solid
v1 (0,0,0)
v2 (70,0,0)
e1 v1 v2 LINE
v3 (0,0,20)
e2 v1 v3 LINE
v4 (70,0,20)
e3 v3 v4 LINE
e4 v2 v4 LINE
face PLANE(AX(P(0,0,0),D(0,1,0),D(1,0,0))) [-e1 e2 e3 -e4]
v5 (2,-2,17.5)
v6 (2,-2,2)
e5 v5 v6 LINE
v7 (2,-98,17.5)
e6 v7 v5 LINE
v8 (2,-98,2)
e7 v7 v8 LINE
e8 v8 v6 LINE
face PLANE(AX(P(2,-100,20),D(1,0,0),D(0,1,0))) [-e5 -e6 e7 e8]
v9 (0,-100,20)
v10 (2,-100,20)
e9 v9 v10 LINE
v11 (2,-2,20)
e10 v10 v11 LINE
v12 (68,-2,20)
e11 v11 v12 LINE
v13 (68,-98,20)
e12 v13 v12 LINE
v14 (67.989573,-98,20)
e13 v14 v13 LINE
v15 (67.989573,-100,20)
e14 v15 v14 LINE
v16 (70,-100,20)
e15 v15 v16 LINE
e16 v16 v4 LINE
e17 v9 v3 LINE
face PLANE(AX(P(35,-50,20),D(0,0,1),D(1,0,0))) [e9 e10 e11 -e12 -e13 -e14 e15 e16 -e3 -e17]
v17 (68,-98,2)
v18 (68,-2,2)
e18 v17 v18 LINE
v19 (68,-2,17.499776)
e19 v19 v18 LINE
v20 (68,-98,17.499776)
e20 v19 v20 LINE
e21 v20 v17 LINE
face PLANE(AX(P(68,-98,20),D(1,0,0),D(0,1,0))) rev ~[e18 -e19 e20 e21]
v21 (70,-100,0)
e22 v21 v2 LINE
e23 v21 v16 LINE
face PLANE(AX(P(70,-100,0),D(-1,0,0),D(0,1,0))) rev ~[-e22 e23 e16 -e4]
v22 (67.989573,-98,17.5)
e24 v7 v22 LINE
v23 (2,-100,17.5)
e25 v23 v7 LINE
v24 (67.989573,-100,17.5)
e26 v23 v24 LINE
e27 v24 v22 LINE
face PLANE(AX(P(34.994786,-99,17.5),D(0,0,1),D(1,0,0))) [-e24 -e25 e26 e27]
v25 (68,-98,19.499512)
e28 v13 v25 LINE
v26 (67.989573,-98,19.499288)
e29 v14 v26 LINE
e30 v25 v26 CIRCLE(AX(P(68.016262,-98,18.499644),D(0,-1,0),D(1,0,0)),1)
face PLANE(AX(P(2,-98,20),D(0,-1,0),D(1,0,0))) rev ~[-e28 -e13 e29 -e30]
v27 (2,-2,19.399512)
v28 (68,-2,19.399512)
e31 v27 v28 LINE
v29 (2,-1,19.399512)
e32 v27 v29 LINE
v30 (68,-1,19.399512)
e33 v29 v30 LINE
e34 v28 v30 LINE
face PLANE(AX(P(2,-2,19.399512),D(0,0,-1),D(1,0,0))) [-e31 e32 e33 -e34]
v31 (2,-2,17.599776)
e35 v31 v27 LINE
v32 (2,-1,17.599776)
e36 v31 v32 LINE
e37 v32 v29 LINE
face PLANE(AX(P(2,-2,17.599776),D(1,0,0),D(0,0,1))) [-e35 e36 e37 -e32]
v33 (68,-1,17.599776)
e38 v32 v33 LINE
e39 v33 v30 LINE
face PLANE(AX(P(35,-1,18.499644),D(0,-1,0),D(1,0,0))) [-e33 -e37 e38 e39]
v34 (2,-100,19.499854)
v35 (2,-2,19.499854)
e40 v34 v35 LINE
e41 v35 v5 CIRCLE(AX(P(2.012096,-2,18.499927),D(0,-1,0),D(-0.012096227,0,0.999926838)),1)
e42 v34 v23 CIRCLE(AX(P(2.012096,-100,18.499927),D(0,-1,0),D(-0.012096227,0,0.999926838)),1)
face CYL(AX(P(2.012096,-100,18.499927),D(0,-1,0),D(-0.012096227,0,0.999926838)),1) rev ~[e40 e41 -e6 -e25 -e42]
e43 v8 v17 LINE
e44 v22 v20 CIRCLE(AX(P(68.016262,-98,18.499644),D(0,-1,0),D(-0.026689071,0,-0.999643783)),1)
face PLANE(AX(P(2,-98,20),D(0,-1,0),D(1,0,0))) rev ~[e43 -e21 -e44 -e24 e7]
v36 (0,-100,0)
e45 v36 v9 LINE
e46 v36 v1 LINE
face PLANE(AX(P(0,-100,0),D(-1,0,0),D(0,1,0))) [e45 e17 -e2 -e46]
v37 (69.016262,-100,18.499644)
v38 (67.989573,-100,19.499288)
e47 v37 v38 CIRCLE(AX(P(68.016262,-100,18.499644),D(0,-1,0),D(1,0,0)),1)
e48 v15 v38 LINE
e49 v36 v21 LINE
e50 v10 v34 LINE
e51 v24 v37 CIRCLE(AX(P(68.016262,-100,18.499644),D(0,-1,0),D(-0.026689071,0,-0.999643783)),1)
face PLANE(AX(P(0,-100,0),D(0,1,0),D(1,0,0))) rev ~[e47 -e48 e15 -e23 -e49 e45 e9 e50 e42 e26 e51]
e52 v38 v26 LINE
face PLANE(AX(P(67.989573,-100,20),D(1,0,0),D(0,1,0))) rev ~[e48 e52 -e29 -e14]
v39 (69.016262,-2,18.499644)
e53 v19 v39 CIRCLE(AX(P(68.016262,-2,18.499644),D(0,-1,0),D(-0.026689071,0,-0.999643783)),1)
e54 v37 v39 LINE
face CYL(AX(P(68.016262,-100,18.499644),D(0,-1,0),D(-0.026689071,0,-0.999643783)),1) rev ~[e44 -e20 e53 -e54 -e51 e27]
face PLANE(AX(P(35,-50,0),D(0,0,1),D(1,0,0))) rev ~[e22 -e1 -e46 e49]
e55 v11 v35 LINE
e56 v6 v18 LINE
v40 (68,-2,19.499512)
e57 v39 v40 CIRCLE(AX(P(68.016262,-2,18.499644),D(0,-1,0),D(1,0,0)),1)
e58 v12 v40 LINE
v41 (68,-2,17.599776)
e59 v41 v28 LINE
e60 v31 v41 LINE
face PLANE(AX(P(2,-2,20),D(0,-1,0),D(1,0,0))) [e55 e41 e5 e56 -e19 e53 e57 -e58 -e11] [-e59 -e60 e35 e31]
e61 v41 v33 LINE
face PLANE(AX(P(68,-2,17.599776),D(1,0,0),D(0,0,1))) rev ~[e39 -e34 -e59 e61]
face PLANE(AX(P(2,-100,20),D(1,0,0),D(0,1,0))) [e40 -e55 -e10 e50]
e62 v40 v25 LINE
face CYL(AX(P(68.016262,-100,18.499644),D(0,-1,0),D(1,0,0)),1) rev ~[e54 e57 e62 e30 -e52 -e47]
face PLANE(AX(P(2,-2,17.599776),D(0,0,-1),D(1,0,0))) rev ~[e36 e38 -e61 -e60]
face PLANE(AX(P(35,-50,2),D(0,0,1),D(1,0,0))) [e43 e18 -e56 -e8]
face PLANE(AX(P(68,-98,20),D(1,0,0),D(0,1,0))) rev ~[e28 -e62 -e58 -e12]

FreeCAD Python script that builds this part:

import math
import FreeCAD as App
import Part
import Sketcher

V = App.Vector


def add_polygon(sketch, points):
    """Adds a closed chain of lines whose ends are joined by coincident constraints."""
    first, n = sketch.GeometryCount, len(points)
    for a, b in zip(points, points[1:] + points[:1]):
        sketch.addGeometry(Part.LineSegment(App.Vector(*a, 0), App.Vector(*b, 0)), False)
    for i in range(n):
        sketch.addConstraint(Sketcher.Constraint("Coincident", first + i, 2, first + (i + 1) % n, 1))

doc = App.newDocument("Part")
params = doc.addObject("Spreadsheet::Sheet", "Params")
for row, (alias, value) in enumerate([
    ("sketch1_width", "70 mm"),
    ("sketch1_height", "100 mm"),
    ("pad1_length", "20 mm"),
    ("sketch2_width", "66 mm"),
    ("sketch2_height", "96 mm"),
    ("pocket1_length", "18 mm"),
    ("sketch3_height", "2 mm"),
    ("pocket2_length", "2.5 mm"),
    ("sketch4_radius", "1 mm"),
    ("pocket3_length", "98 mm"),
    ("sketch5_width", "66 mm"),
    ("pocket4_length", "1 mm"),
], start=1):
    params.set(f"A{row}", alias)
    params.set(f"B{row}", "=" + value)
    params.setAlias(f"B{row}", alias)

body = doc.addObject("PartDesign::Body", "Body")

# Sketch on XY plane
sketch1 = body.newObject("Sketcher::SketchObject", "Sketch")
sketch1.AttachmentSupport = (doc.getObject("XY_Plane"), [""])
sketch1.MapMode = "FlatFace"
add_polygon(sketch1, [(0, 0), (0, -100), (70, -100), (70, 0)])  # lines 0-3
sketch1.addConstraint(Sketcher.Constraint("Vertical", 0))
sketch1.addConstraint(Sketcher.Constraint("Horizontal", 1))
sketch1.addConstraint(Sketcher.Constraint("Vertical", 2))
sketch1.addConstraint(Sketcher.Constraint("Horizontal", 3))
sketch1.addConstraint(Sketcher.Constraint("Coincident", 3, 2, -1, 1))
sketch1.addConstraint(Sketcher.Constraint("DistanceX", 1, 1, 1, 2, 70.0))
sketch1.addConstraint(Sketcher.Constraint("DistanceY", 0, 2, 0, 1, 100.0))
sketch1.setExpression("Constraints[9]", "Params.sketch1_width")
sketch1.setExpression("Constraints[10]", "Params.sketch1_height")
pad1 = body.newObject("PartDesign::Pad", "Pad")
pad1.Profile = sketch1
pad1.setExpression("Length", "Params.pad1_length")

# Sketch on XY plane
sketch2 = body.newObject("Sketcher::SketchObject", "Sketch001")
sketch2.AttachmentSupport = (doc.getObject("XY_Plane"), [""])
sketch2.MapMode = "FlatFace"
sketch2.AttachmentOffset = App.Placement(V(0, 0, 20), App.Rotation())
add_polygon(sketch2, [(2, -2), (2, -98), (68, -98), (68, -2)])  # lines 0-3
sketch2.addConstraint(Sketcher.Constraint("Vertical", 0))
sketch2.addConstraint(Sketcher.Constraint("Horizontal", 1))
sketch2.addConstraint(Sketcher.Constraint("Vertical", 2))
sketch2.addConstraint(Sketcher.Constraint("Horizontal", 3))
sketch2.addConstraint(Sketcher.Constraint("DistanceX", 1, 1, 1, 2, 66.0))
sketch2.addConstraint(Sketcher.Constraint("DistanceY", 0, 2, 0, 1, 96.0))
sketch2.addConstraint(Sketcher.Constraint("DistanceX", -1, 1, 0, 2, 2.0))
sketch2.addConstraint(Sketcher.Constraint("DistanceY", 0, 2, -1, 1, 98.0))
sketch2.setExpression("Constraints[8]", "Params.sketch2_width")
sketch2.setExpression("Constraints[9]", "Params.sketch2_height")
pocket1 = body.newObject("PartDesign::Pocket", "Pocket")
pocket1.Profile = sketch2
pocket1.setExpression("Length", "Params.pocket1_length")

# Sketch on XY plane
sketch3 = body.newObject("Sketcher::SketchObject", "Sketch002")
sketch3.AttachmentSupport = (doc.getObject("XY_Plane"), [""])
sketch3.MapMode = "FlatFace"
sketch3.AttachmentOffset = App.Placement(V(0, 0, 20), App.Rotation())
add_polygon(sketch3, [(2, -98), (2, -100), (68, -100), (68, -98)])  # lines 0-3
sketch3.addConstraint(Sketcher.Constraint("Vertical", 0))
sketch3.addConstraint(Sketcher.Constraint("Horizontal", 1))
sketch3.addConstraint(Sketcher.Constraint("Vertical", 2))
sketch3.addConstraint(Sketcher.Constraint("Horizontal", 3))
sketch3.addConstraint(Sketcher.Constraint("DistanceY", 0, 2, 0, 1, 2.0))
sketch3.addConstraint(Sketcher.Constraint("DistanceX", -1, 1, 0, 2, 2.0))
sketch3.addConstraint(Sketcher.Constraint("DistanceY", 0, 2, -1, 1, 100.0))
sketch3.addConstraint(Sketcher.Constraint("DistanceX", 1, 1, 1, 2, 65.989573))
sketch3.setExpression("Constraints[8]", "Params.sketch3_height")
pocket2 = body.newObject("PartDesign::Pocket", "Pocket001")
pocket2.Profile = sketch3
pocket2.setExpression("Length", "Params.pocket2_length")

# Sketch on XZ plane
sketch4 = body.newObject("Sketcher::SketchObject", "Sketch003")
sketch4.AttachmentSupport = (doc.getObject("XZ_Plane"), [""])
sketch4.MapMode = "FlatFace"
sketch4.AttachmentOffset = App.Placement(V(0, 0, 100), App.Rotation())
sketch4.addGeometry(Part.LineSegment(V(67.989573, 19.499288, 0), V(67.989573, 17.5, 0)), False)
sketch4.addGeometry(Part.ArcOfCircle(Part.Circle(V(68.016262, 18.499644, 0), V(0, 0, 1), 1), math.radians(-91.529353), math.radians(0)), False)
sketch4.addGeometry(Part.ArcOfCircle(Part.Circle(V(68.016262, 18.499644, 0), V(0, 0, 1), 1), math.radians(0), math.radians(91.529353)), False)
sketch4.addGeometry(Part.ArcOfCircle(Part.Circle(V(2.012096, 18.499927, 0), V(0, 0, 1), 1), math.radians(90.69308), math.radians(269.30692)), False)
sketch4.addGeometry(Part.LineSegment(V(2, 17.5, 0), V(2, 19.499854, 0)), False)
sketch4.addConstraint(Sketcher.Constraint("Coincident", 0, 2, 1, 1))
sketch4.addConstraint(Sketcher.Constraint("Tangent", 1, 2, 2, 1))
sketch4.addConstraint(Sketcher.Constraint("Coincident", 2, 2, 0, 1))
sketch4.addConstraint(Sketcher.Constraint("Coincident", 3, 1, 4, 2))
sketch4.addConstraint(Sketcher.Constraint("Coincident", 4, 1, 3, 2))
sketch4.addConstraint(Sketcher.Constraint("Vertical", 0))
sketch4.addConstraint(Sketcher.Constraint("Vertical", 4))
sketch4.addConstraint(Sketcher.Constraint("Equal", 1, 2))
sketch4.addConstraint(Sketcher.Constraint("Equal", 2, 3))
sketch4.addConstraint(Sketcher.Constraint("Horizontal", 2, 3, 1, 2))
sketch4.addConstraint(Sketcher.Constraint("Horizontal", 0, 2, 4, 1))
sketch4.addConstraint(Sketcher.Constraint("Radius", 1, 1.0))
sketch4.addConstraint(Sketcher.Constraint("DistanceX", -1, 1, 3, 1, 2.0))
sketch4.addConstraint(Sketcher.Constraint("DistanceY", -1, 1, 0, 2, 17.5))
sketch4.addConstraint(Sketcher.Constraint("DistanceY", 0, 2, 0, 1, 1.999288))
sketch4.addConstraint(Sketcher.Constraint("DistanceY", 4, 1, 4, 2, 1.999854))
sketch4.addConstraint(Sketcher.Constraint("DistanceX", -1, 1, 1, 3, 68.016262))
sketch4.setExpression("Constraints[11]", "Params.sketch4_radius")
pocket3 = body.newObject("PartDesign::Pocket", "Pocket002")
pocket3.Profile = sketch4
pocket3.setExpression("Length", "Params.pocket3_length")

# Sketch on XZ plane
sketch5 = body.newObject("Sketcher::SketchObject", "Sketch004")
sketch5.AttachmentSupport = (doc.getObject("XZ_Plane"), [""])
sketch5.MapMode = "FlatFace"
sketch5.AttachmentOffset = App.Placement(V(0, 0, 2), App.Rotation())
add_polygon(sketch5, [(2, 19.4), (2, 17.6), (68, 17.6), (68, 19.4)])  # lines 0-3
sketch5.addConstraint(Sketcher.Constraint("Vertical", 0))
sketch5.addConstraint(Sketcher.Constraint("Horizontal", 1))
sketch5.addConstraint(Sketcher.Constraint("Vertical", 2))
sketch5.addConstraint(Sketcher.Constraint("Horizontal", 3))
sketch5.addConstraint(Sketcher.Constraint("DistanceX", 1, 1, 1, 2, 66.0))
sketch5.addConstraint(Sketcher.Constraint("DistanceX", -1, 1, 0, 2, 2.0))
sketch5.addConstraint(Sketcher.Constraint("DistanceY", 0, 2, 0, 1, 1.799736))
sketch5.addConstraint(Sketcher.Constraint("DistanceY", -1, 1, 2, 2, 19.399512))
sketch5.setExpression("Constraints[8]", "Params.sketch5_width")
pocket4 = body.newObject("PartDesign::Pocket", "Pocket003")
pocket4.Profile = sketch5
pocket4.setExpression("Length", "Params.pocket4_length")

doc.recompute()
